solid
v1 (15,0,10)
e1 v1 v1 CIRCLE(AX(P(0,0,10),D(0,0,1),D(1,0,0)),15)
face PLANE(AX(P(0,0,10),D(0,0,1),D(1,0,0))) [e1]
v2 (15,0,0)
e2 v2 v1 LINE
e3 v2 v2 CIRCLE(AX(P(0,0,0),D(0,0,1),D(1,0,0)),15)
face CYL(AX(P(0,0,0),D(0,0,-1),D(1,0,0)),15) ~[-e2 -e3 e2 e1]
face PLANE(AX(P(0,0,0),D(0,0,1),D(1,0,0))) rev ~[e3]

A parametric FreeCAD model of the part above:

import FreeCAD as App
import Part
import Sketcher
Q = App.Units.Quantity

doc = App.newDocument("Part")
body = doc.addObject("PartDesign::Body", "Body")

sketch1 = body.newObject("Sketcher::SketchObject", "Sketch")
sketch1.AttachmentSupport = (doc.getObject("XY_Plane"), [""])
sketch1.MapMode = "FlatFace"
sketch1.addGeometry(Part.Circle(App.Vector(0, 0, 0), App.Vector(0, 0, 1), 15), False)
sketch1.addConstraint([
    Sketcher.Constraint("Coincident", 0, 3, -1, 1),
    Sketcher.Constraint("Diameter", 0, Q("30 mm")),
])
pad1 = body.newObject("PartDesign::Pad", "Pad")
pad1.Profile = sketch1
pad1.Length = 10

doc.recompute()
